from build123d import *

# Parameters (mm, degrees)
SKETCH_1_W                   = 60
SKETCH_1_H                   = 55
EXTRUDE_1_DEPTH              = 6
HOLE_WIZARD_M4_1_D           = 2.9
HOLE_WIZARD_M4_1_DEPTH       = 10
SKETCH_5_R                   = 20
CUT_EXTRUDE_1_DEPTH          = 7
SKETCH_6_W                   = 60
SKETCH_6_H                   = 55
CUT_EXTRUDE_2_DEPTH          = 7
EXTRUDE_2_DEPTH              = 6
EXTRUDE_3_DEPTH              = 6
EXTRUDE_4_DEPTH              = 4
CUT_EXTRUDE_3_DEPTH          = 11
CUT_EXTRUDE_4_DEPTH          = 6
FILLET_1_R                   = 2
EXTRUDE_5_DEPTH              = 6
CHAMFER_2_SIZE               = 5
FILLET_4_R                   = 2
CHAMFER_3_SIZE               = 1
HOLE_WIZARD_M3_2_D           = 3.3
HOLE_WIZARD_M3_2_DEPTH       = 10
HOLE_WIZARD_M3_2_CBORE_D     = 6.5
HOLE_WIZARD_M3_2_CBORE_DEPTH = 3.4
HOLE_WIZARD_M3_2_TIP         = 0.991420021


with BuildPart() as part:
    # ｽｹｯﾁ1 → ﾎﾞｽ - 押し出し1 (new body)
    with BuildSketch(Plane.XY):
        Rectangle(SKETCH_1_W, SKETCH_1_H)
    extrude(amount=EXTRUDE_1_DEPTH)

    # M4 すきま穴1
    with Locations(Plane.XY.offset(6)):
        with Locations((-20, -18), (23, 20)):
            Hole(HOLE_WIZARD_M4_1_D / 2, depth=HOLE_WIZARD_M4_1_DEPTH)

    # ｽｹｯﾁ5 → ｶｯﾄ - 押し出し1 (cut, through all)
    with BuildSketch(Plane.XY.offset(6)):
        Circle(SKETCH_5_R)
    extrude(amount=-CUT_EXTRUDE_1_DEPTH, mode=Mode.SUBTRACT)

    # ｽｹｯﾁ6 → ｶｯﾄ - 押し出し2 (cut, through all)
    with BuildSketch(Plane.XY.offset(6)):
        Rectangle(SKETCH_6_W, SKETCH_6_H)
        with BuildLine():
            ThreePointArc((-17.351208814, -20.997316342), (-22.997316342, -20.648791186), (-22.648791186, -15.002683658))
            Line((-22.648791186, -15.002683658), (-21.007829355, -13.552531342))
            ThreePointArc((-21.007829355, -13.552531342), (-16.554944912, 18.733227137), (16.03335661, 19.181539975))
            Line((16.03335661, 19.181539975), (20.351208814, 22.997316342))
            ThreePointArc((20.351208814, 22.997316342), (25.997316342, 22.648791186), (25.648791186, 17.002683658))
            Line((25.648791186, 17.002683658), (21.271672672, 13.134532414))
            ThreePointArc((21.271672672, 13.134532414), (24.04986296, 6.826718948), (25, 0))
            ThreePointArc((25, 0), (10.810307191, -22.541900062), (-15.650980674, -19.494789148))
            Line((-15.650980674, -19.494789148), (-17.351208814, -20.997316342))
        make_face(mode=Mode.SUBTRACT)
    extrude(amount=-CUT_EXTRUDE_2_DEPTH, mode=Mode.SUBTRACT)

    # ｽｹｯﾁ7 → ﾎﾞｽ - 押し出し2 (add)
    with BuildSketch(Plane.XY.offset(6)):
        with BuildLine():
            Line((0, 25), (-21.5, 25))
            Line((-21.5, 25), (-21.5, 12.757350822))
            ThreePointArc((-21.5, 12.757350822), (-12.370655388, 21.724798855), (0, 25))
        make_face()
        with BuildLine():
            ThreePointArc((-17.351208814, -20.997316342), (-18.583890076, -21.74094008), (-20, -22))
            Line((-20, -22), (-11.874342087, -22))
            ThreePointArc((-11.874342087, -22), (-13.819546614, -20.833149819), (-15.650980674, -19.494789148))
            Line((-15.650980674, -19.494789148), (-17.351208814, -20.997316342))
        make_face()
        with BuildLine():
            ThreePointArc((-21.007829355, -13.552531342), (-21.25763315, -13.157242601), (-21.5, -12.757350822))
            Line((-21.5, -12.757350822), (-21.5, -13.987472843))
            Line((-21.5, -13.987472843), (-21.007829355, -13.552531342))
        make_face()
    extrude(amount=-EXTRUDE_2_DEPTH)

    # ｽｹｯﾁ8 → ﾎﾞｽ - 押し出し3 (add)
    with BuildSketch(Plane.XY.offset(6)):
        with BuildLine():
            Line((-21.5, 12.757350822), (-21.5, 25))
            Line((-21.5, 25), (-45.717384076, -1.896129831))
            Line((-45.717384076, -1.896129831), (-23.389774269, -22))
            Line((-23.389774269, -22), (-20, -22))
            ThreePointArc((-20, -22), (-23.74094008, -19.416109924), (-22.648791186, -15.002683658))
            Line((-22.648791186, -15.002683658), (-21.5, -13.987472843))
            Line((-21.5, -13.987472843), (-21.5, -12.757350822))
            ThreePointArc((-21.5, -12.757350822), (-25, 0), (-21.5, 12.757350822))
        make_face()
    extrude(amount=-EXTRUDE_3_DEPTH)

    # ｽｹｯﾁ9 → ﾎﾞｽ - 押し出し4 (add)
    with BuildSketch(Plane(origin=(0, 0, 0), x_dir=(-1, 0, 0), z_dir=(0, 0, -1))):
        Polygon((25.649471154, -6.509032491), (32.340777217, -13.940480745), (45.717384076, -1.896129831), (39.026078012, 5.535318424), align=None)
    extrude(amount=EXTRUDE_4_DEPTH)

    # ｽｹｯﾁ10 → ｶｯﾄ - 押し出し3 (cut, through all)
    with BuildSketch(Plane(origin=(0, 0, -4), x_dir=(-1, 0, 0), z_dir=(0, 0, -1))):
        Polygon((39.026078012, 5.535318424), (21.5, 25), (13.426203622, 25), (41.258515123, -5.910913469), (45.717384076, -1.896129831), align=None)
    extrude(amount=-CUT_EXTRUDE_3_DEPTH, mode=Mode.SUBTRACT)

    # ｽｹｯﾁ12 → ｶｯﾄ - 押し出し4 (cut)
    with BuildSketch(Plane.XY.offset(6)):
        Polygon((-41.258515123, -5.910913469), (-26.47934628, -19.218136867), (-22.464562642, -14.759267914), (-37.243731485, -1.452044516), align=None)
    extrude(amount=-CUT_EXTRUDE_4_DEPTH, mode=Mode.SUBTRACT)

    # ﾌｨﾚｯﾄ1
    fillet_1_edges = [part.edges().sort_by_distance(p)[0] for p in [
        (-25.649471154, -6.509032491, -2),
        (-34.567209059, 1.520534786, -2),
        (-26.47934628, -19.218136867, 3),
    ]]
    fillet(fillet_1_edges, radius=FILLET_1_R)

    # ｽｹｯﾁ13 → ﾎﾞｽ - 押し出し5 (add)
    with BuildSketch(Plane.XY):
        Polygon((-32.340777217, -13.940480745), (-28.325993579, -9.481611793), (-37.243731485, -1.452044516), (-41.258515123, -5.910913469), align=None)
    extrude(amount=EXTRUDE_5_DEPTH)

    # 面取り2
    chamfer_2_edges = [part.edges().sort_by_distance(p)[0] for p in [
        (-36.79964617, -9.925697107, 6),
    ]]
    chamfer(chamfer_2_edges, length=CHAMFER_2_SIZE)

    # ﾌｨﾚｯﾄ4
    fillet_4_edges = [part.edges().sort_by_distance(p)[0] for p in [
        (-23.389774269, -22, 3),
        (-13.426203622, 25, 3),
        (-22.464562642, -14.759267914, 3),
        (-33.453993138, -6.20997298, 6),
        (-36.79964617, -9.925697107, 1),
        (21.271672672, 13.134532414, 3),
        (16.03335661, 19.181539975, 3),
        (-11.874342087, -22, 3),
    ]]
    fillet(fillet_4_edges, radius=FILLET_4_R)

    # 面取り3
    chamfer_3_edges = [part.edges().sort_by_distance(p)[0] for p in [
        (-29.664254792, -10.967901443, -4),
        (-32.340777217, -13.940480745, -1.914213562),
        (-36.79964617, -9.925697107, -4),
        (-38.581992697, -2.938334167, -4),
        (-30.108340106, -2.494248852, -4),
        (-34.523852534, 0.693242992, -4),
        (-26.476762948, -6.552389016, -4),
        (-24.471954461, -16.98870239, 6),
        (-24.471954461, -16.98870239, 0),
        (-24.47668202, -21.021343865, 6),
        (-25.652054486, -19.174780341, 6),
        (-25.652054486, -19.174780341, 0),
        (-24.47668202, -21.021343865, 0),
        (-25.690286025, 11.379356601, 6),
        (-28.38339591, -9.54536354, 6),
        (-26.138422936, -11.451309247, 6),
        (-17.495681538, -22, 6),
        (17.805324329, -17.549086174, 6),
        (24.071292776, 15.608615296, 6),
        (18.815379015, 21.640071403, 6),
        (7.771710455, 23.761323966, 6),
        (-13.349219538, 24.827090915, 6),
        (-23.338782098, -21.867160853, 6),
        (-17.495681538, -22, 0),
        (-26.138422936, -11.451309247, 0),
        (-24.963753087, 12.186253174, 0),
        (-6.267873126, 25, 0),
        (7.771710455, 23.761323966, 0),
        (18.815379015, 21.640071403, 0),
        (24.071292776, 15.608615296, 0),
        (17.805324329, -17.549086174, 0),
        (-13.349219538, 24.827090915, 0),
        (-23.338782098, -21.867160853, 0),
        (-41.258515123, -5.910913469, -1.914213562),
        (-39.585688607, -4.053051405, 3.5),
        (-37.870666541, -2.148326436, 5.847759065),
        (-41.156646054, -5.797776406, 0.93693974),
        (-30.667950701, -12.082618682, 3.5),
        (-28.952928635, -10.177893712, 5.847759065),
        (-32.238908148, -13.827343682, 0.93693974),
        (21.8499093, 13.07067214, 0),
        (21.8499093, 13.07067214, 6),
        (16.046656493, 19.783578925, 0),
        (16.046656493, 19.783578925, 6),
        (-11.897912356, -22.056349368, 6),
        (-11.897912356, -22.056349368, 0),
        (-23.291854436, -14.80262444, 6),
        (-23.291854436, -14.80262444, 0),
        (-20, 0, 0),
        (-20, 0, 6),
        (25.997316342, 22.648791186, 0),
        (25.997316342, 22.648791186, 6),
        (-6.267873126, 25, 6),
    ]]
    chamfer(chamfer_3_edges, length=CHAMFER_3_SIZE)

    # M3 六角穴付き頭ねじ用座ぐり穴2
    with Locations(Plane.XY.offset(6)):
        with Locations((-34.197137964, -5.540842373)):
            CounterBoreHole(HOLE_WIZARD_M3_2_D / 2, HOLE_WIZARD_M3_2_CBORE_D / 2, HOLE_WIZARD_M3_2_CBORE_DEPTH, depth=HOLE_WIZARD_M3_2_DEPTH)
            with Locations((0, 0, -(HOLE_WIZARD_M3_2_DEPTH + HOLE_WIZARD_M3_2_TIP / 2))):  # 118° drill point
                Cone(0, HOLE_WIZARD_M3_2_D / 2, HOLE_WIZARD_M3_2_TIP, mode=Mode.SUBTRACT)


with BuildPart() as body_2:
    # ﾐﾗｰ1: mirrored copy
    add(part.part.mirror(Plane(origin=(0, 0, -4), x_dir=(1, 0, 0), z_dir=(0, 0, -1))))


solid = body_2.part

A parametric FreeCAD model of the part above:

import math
import FreeCAD as App
import Part
import Sketcher
Q = App.Units.Quantity


def edges_at(feature, points):
    """Names of the edges that pass closest to the given points."""
    edges = feature.Shape.Edges
    near = lambda p: min(range(len(edges)), key=lambda i: edges[i].distToShape(Part.Vertex(*p))[0])
    return sorted({f"Edge{near(p) + 1}" for p in points})


def add_polygon(sketch, points):
    """Adds a closed chain of lines whose ends are joined by coincident constraints."""
    first, n = sketch.GeometryCount, len(points)
    for a, b in zip(points, points[1:] + points[:1]):
        sketch.addGeometry(Part.LineSegment(App.Vector(*a, 0), App.Vector(*b, 0)), False)
    for i in range(n):
        sketch.addConstraint(Sketcher.Constraint("Coincident", first + i, 2, first + (i + 1) % n, 1))

doc = App.newDocument("Part")
params = doc.addObject("Spreadsheet::Sheet", "Params")
for row, (alias, value) in enumerate([
    ("sketch1_width", "60 mm"),
    ("sketch1_height", "55 mm"),
    ("pad1_length", "6 mm"),
    ("sketch2_diameter", "2.9 mm"),
    ("hole_diameter", "2.9 mm"),
    ("hole_depth", "10 mm"),
    ("sketch3_diameter", "40 mm"),
    ("sketch4_radius", "4 mm"),
    ("sketch4_radius2", "25 mm"),
    ("sketch4_width", "60 mm"),
    ("sketch4_height", "55 mm"),
    ("sketch5_radius", "25 mm"),
    ("sketch5_radius2", "4 mm"),
    ("sketch5_width", "21.5 mm"),
    ("pad2_length", "6 mm"),
    ("sketch6_radius", "4 mm"),
    ("sketch6_radius2", "25 mm"),
    ("pad3_length", "6 mm"),
    ("sketch7_length", "10 mm"),
    ("sketch7_length2", "18 mm"),
    ("pad4_length", "4 mm"),
    ("sketch8_length", "6 mm"),
    ("sketch8_length2", "10 mm"),
    ("sketch9_length", "6 mm"),
    ("pocket4_length", "6 mm"),
    ("fillet_radius", "2 mm"),
    ("sketch10_length", "6 mm"),
    ("sketch10_length2", "12 mm"),
    ("pad5_length", "6 mm"),
    ("chamfer_size", "5 mm"),
    ("fillet2_radius", "2 mm"),
    ("chamfer2_size", "1 mm"),
    ("sketch11_diameter", "3.3 mm"),
    ("hole2_diameter", "3.3 mm"),
    ("hole2_depth", "10 mm"),
    ("hole2_cbore_diameter", "6.5 mm"),
    ("hole2_cbore_depth", "3.4 mm"),
], start=1):
    params.set(f"A{row}", alias)
    params.set(f"B{row}", "=" + value)
    params.setAlias(f"B{row}", alias)

body = doc.addObject("PartDesign::Body", "Body")

sketch1 = body.newObject("Sketcher::SketchObject", "Sketch")
sketch1.AttachmentSupport = (doc.getObject("XY_Plane"), [""])
sketch1.MapMode = "FlatFace"
add_polygon(sketch1, [(-30, 28), (-30, -28), (30, -28), (30, 28)])
sketch1.addConstraint(Sketcher.Constraint("Vertical", 0))
sketch1.addConstraint(Sketcher.Constraint("Horizontal", 1))
sketch1.addConstraint(Sketcher.Constraint("Vertical", 2))
sketch1.addConstraint(Sketcher.Constraint("Horizontal", 3))
sketch1.addConstraint(Sketcher.Constraint("Symmetric", 0, 2, 2, 2, -1, 1))
sketch1.addConstraint(Sketcher.Constraint("DistanceX", 1, 1, 1, 2, 60.0))
sketch1.addConstraint(Sketcher.Constraint("DistanceY", 0, 2, 0, 1, 55.0))
sketch1.setExpression("Constraints[9]", "Params.sketch1_width")
sketch1.setExpression("Constraints[10]", "Params.sketch1_height")
pad1 = body.newObject("PartDesign::Pad", "Pad")
pad1.Profile = sketch1
pad1.setExpression("Length", "Params.pad1_length")

sketch2 = body.newObject("Sketcher::SketchObject", "Sketch001")
sketch2.AttachmentSupport = (doc.getObject("XY_Plane"), [""])
sketch2.MapMode = "FlatFace"
sketch2.AttachmentOffset = App.Placement(App.Vector(0, 0, 6), App.Rotation())
sketch2.addGeometry(Part.Circle(App.Vector(-20, -18, 0), App.Vector(0, 0, 1), 1.4), False)
sketch2.addGeometry(Part.Circle(App.Vector(23, 20, 0), App.Vector(0, 0, 1), 1.4), False)
sketch2.addConstraint(Sketcher.Constraint("Equal", 0, 1))
sketch2.addConstraint(Sketcher.Constraint("Diameter", 0, 2.9))
sketch2.addConstraint(Sketcher.Constraint("DistanceX", 0, 3, -1, 1, 20.0))
sketch2.addConstraint(Sketcher.Constraint("DistanceY", 0, 3, -1, 1, 18.0))
sketch2.addConstraint(Sketcher.Constraint("DistanceX", -1, 1, 1, 3, 23.0))
sketch2.addConstraint(Sketcher.Constraint("DistanceY", -1, 1, 1, 3, 20.0))
sketch2.setExpression("Constraints[1]", "Params.sketch2_diameter")
doc.recompute()
hole = body.newObject("PartDesign::Hole", "Hole")
hole.Profile = sketch2
hole.ThreadType = "None"
hole.setExpression("Diameter", "Params.hole_diameter")
hole.DepthType = "Dimension"
hole.setExpression("Depth", "Params.hole_depth")
hole.DrillPoint = "Flat"

sketch3 = body.newObject("Sketcher::SketchObject", "Sketch002")
sketch3.AttachmentSupport = (doc.getObject("XY_Plane"), [""])
sketch3.MapMode = "FlatFace"
sketch3.AttachmentOffset = App.Placement(App.Vector(0, 0, 6), App.Rotation())
sketch3.addGeometry(Part.Circle(App.Vector(0, 0, 0), App.Vector(0, 0, 1), 20), False)
sketch3.addConstraint(Sketcher.Constraint("Coincident", 0, 3, -1, 1))
sketch3.addConstraint(Sketcher.Constraint("Diameter", 0, 40.0))
sketch3.setExpression("Constraints[1]", "Params.sketch3_diameter")
pocket1 = body.newObject("PartDesign::Pocket", "Pocket")
pocket1.Profile = sketch3
pocket1.Type = "ThroughAll"

sketch4 = body.newObject("Sketcher::SketchObject", "Sketch003")
sketch4.AttachmentSupport = (doc.getObject("XY_Plane"), [""])
sketch4.MapMode = "FlatFace"
sketch4.AttachmentOffset = App.Placement(App.Vector(0, 0, 6), App.Rotation())
add_polygon(sketch4, [(-30, 27.5), (-30, -27.5), (30, -27.5), (30, 27.5)])
sketch4.addGeometry(Part.LineSegment(App.Vector(-15.7, -19.5, 0), App.Vector(-17.4, -21, 0)), False)
sketch4.addGeometry(Part.ArcOfCircle(Part.Circle(App.Vector(-20, -18, 0), App.Vector(0, 0, 1), 4), math.radians(131), math.radians(311)), False)
sketch4.addGeometry(Part.LineSegment(App.Vector(-22.6, -15, 0), App.Vector(-21, -13.6, 0)), False)
sketch4.addGeometry(Part.ArcOfCircle(Part.Circle(App.Vector(0, 0, 0), App.Vector(0, 0, 1), 25), math.radians(50), math.radians(213)), False)
sketch4.addGeometry(Part.LineSegment(App.Vector(16, 19.2, 0), App.Vector(20.4, 23, 0)), False)
sketch4.addGeometry(Part.ArcOfCircle(Part.Circle(App.Vector(23, 20, 0), App.Vector(0, 0, 1), 4), math.radians(-49), math.radians(131)), False)
sketch4.addGeometry(Part.LineSegment(App.Vector(25.6, 17, 0), App.Vector(21.3, 13.1, 0)), False)
sketch4.addGeometry(Part.ArcOfCircle(Part.Circle(App.Vector(0, 0, 0), App.Vector(0, 0, 1), 25), math.radians(0), math.radians(32)), False)
sketch4.addGeometry(Part.ArcOfCircle(Part.Circle(App.Vector(0, 0, 0), App.Vector(0, 0, 1), 25), math.radians(-129), math.radians(0)), False)
sketch4.addConstraint(Sketcher.Constraint("Tangent", 4, 2, 5, 2))
sketch4.addConstraint(Sketcher.Constraint("Tangent", 5, 1, 6, 1))
sketch4.addConstraint(Sketcher.Constraint("Coincident", 6, 2, 7, 2))
sketch4.addConstraint(Sketcher.Constraint("Coincident", 7, 1, 8, 1))
sketch4.addConstraint(Sketcher.Constraint("Tangent", 8, 2, 9, 2))
sketch4.addConstraint(Sketcher.Constraint("Tangent", 9, 1, 10, 1))
sketch4.addConstraint(Sketcher.Constraint("Coincident", 10, 2, 11, 2))
sketch4.addConstraint(Sketcher.Constraint("Tangent", 11, 1, 12, 2))
sketch4.addConstraint(Sketcher.Constraint("Coincident", 12, 1, 4, 1))
sketch4.addConstraint(Sketcher.Constraint("Vertical", 0))
sketch4.addConstraint(Sketcher.Constraint("Horizontal", 1))
sketch4.addConstraint(Sketcher.Constraint("Vertical", 2))
sketch4.addConstraint(Sketcher.Constraint("Horizontal", 3))
sketch4.addConstraint(Sketcher.Constraint("Coincident", 7, 3, -1, 1))
sketch4.addConstraint(Sketcher.Constraint("Coincident", 11, 3, -1, 1))
sketch4.addConstraint(Sketcher.Constraint("Equal", 5, 9))
sketch4.addConstraint(Sketcher.Constraint("Equal", 7, 11))
sketch4.addConstraint(Sketcher.Constraint("Equal", 11, 12))
sketch4.addConstraint(Sketcher.Constraint("Symmetric", 0, 2, 2, 2, -1, 1))
sketch4.addConstraint(Sketcher.Constraint("PointOnObject", 11, 1, -1))
sketch4.addConstraint(Sketcher.Constraint("Parallel", 4, 6))
sketch4.addConstraint(Sketcher.Constraint("Parallel", 6, 8))
sketch4.addConstraint(Sketcher.Constraint("Parallel", 8, 10))
sketch4.addConstraint(Sketcher.Constraint("Radius", 5, 4.0))
sketch4.addConstraint(Sketcher.Constraint("Radius", 7, 25.0))
sketch4.addConstraint(Sketcher.Constraint("DistanceX", 1, 1, 1, 2, 60.0))
sketch4.addConstraint(Sketcher.Constraint("DistanceY", 0, 2, 0, 1, 55.0))
sketch4.addConstraint(Sketcher.Constraint("DistanceX", 5, 3, -1, 1, 20.0))
sketch4.addConstraint(Sketcher.Constraint("DistanceY", 5, 3, -1, 1, 18.0))
sketch4.addConstraint(Sketcher.Constraint("DistanceX", -1, 1, 9, 3, 23.0))
sketch4.addConstraint(Sketcher.Constraint("DistanceY", -1, 1, 9, 3, 20.0))
sketch4.addConstraint(Sketcher.Constraint("Distance", 4, 2.269001))
sketch4.setExpression("Constraints[27]", "Params.sketch4_radius")
sketch4.setExpression("Constraints[28]", "Params.sketch4_radius2")
sketch4.setExpression("Constraints[29]", "Params.sketch4_width")
sketch4.setExpression("Constraints[30]", "Params.sketch4_height")
pocket2 = body.newObject("PartDesign::Pocket", "Pocket001")
pocket2.Profile = sketch4
pocket2.Type = "ThroughAll"

sketch5 = body.newObject("Sketcher::SketchObject", "Sketch004")
sketch5.AttachmentSupport = (doc.getObject("XY_Plane"), [""])
sketch5.MapMode = "FlatFace"
sketch5.AttachmentOffset = App.Placement(App.Vector(0, 0, 6), App.Rotation())
sketch5.addGeometry(Part.LineSegment(App.Vector(0, 25, 0), App.Vector(-21.5, 25, 0)), False)
sketch5.addGeometry(Part.LineSegment(App.Vector(-21.5, 25, 0), App.Vector(-21.5, 12.8, 0)), False)
sketch5.addGeometry(Part.ArcOfCircle(Part.Circle(App.Vector(0, 0, 0), App.Vector(0, 0, 1), 25), math.radians(90), math.radians(149)), False)
sketch5.addGeometry(Part.ArcOfCircle(Part.Circle(App.Vector(-20, -18, 0), App.Vector(0, 0, 1), 4), math.radians(-90), math.radians(-49)), False)
sketch5.addGeometry(Part.LineSegment(App.Vector(-20, -22, 0), App.Vector(-11.9, -22, 0)), False)
sketch5.addGeometry(Part.ArcOfCircle(Part.Circle(App.Vector(0, 0, 0), App.Vector(0, 0, 1), 25), math.radians(-128.76), math.radians(-118.36)), False)
sketch5.addGeometry(Part.LineSegment(App.Vector(-15.7, -19.5, 0), App.Vector(-17.4, -21, 0)), False)
sketch5.addGeometry(Part.ArcOfCircle(Part.Circle(App.Vector(0, 0, 0), App.Vector(0, 0, 1), 25), math.radians(-149.32), math.radians(-147.17)), False)
sketch5.addGeometry(Part.LineSegment(App.Vector(-21.5, -12.8, 0), App.Vector(-21.5, -14, 0)), False)
sketch5.addGeometry(Part.LineSegment(App.Vector(-21.5, -14, 0), App.Vector(-21, -13.6, 0)), False)
sketch5.addConstraint(Sketcher.Constraint("Coincident", 0, 2, 1, 1))
sketch5.addConstraint(Sketcher.Constraint("Coincident", 1, 2, 2, 2))
sketch5.addConstraint(Sketcher.Constraint("Tangent", 2, 1, 0, 1))
sketch5.addConstraint(Sketcher.Constraint("Tangent", 3, 1, 4, 1))
sketch5.addConstraint(Sketcher.Constraint("Coincident", 4, 2, 5, 2))
sketch5.addConstraint(Sketcher.Constraint("Coincident", 5, 1, 6, 1))
sketch5.addConstraint(Sketcher.Constraint("Tangent", 6, 2, 3, 2))
sketch5.addConstraint(Sketcher.Constraint("Coincident", 7, 1, 8, 1))
sketch5.addConstraint(Sketcher.Constraint("Coincident", 8, 2, 9, 1))
sketch5.addConstraint(Sketcher.Constraint("Coincident", 9, 2, 7, 2))
sketch5.addConstraint(Sketcher.Constraint("Horizontal", 0))
sketch5.addConstraint(Sketcher.Constraint("Vertical", 1))
sketch5.addConstraint(Sketcher.Constraint("Horizontal", 4))
sketch5.addConstraint(Sketcher.Constraint("Vertical", 8))
sketch5.addConstraint(Sketcher.Constraint("Coincident", 2, 3, -1, 1))
sketch5.addConstraint(Sketcher.Constraint("Coincident", 5, 3, -1, 1))
sketch5.addConstraint(Sketcher.Constraint("Coincident", 7, 3, -1, 1))
sketch5.addConstraint(Sketcher.Constraint("Equal", 2, 5))
sketch5.addConstraint(Sketcher.Constraint("Equal", 5, 7))
sketch5.addConstraint(Sketcher.Constraint("Parallel", 6, 9))
sketch5.addConstraint(Sketcher.Constraint("Vertical", 1, 2, 7, 1))
sketch5.addConstraint(Sketcher.Constraint("Radius", 2, 25.0))
sketch5.addConstraint(Sketcher.Constraint("Radius", 3, 4.0))
sketch5.addConstraint(Sketcher.Constraint("DistanceX", 0, 2, 0, 1, 21.5))
sketch5.addConstraint(Sketcher.Constraint("DistanceX", 3, 3, -1, 1, 20.0))
sketch5.addConstraint(Sketcher.Constraint("DistanceY", 3, 3, -1, 1, 18.0))
sketch5.addConstraint(Sketcher.Constraint("Distance", 6, 2.269001))
sketch5.addConstraint(Sketcher.Constraint("DistanceY", 8, 2, 8, 1, 1.230122))
sketch5.setExpression("Constraints[21]", "Params.sketch5_radius")
sketch5.setExpression("Constraints[22]", "Params.sketch5_radius2")
sketch5.setExpression("Constraints[23]", "Params.sketch5_width")
pad2 = body.newObject("PartDesign::Pad", "Pad001")
pad2.Profile = sketch5
pad2.setExpression("Length", "Params.pad2_length")
pad2.Reversed = True

sketch6 = body.newObject("Sketcher::SketchObject", "Sketch005")
sketch6.AttachmentSupport = (doc.getObject("XY_Plane"), [""])
sketch6.MapMode = "FlatFace"
sketch6.AttachmentOffset = App.Placement(App.Vector(0, 0, 6), App.Rotation())
sketch6.addGeometry(Part.LineSegment(App.Vector(-21.5, 12.8, 0), App.Vector(-21.5, 25, 0)), False)
sketch6.addGeometry(Part.LineSegment(App.Vector(-21.5, 25, 0), App.Vector(-45.7, -1.9, 0)), False)
sketch6.addGeometry(Part.LineSegment(App.Vector(-45.7, -1.9, 0), App.Vector(-23.4, -22, 0)), False)
sketch6.addGeometry(Part.LineSegment(App.Vector(-23.4, -22, 0), App.Vector(-20, -22, 0)), False)
sketch6.addGeometry(Part.ArcOfCircle(Part.Circle(App.Vector(-20, -18, 0), App.Vector(0, 0, 1), 4), math.radians(131), math.radians(270)), False)
sketch6.addGeometry(Part.LineSegment(App.Vector(-22.6, -15, 0), App.Vector(-21.5, -14, 0)), False)
sketch6.addGeometry(Part.LineSegment(App.Vector(-21.5, -14, 0), App.Vector(-21.5, -12.8, 0)), False)
sketch6.addGeometry(Part.ArcOfCircle(Part.Circle(App.Vector(0, 0, 0), App.Vector(0, 0, 1), 25), math.radians(149), math.radians(211)), False)
sketch6.addConstraint(Sketcher.Constraint("Coincident", 0, 2, 1, 1))
sketch6.addConstraint(Sketcher.Constraint("Coincident", 1, 2, 2, 1))
sketch6.addConstraint(Sketcher.Constraint("Coincident", 2, 2, 3, 1))
sketch6.addConstraint(Sketcher.Constraint("Tangent", 3, 2, 4, 2))
sketch6.addConstraint(Sketcher.Constraint("Tangent", 4, 1, 5, 1))
sketch6.addConstraint(Sketcher.Constraint("Coincident", 5, 2, 6, 1))
sketch6.addConstraint(Sketcher.Constraint("Coincident", 6, 2, 7, 2))
sketch6.addConstraint(Sketcher.Constraint("Coincident", 7, 1, 0, 1))
sketch6.addConstraint(Sketcher.Constraint("Vertical", 0))
sketch6.addConstraint(Sketcher.Constraint("Horizontal", 3))
sketch6.addConstraint(Sketcher.Constraint("Vertical", 6))
sketch6.addConstraint(Sketcher.Constraint("Coincident", 7, 3, -1, 1))
sketch6.addConstraint(Sketcher.Constraint("Perpendicular", 1, 2))
sketch6.addConstraint(Sketcher.Constraint("Vertical", 0, 2, 5, 2))
sketch6.addConstraint(Sketcher.Constraint("Radius", 4, 4.0))
sketch6.addConstraint(Sketcher.Constraint("Radius", 7, 25.0))
sketch6.addConstraint(Sketcher.Constraint("Angle", 1, Q("-132 deg")))
sketch6.addConstraint(Sketcher.Constraint("DistanceX", 4, 3, -1, 1, 20.0))
sketch6.addConstraint(Sketcher.Constraint("DistanceY", 4, 3, -1, 1, 18.0))
sketch6.addConstraint(Sketcher.Constraint("DistanceY", -1, 1, 0, 2, 25.0))
sketch6.addConstraint(Sketcher.Constraint("DistanceX", 0, 2, -1, 1, 21.5))
sketch6.addConstraint(Sketcher.Constraint("DistanceX", 3, 1, 3, 2, 3.389774))
sketch6.addConstraint(Sketcher.Constraint("DistanceY", 6, 1, 6, 2, 1.230122))
sketch6.setExpression("Constraints[14]", "Params.sketch6_radius")
sketch6.setExpression("Constraints[15]", "Params.sketch6_radius2")
pad3 = body.newObject("PartDesign::Pad", "Pad002")
pad3.Profile = sketch6
pad3.setExpression("Length", "Params.pad3_length")
pad3.Reversed = True

sketch7 = body.newObject("Sketcher::SketchObject", "Sketch006")
sketch7.AttachmentSupport = (doc.getObject("XY_Plane"), [""])
sketch7.MapMode = "FlatFace"
add_polygon(sketch7, [(-26, -7), (-32, -14), (-46, -2), (-39, 6)])
sketch7.addConstraint(Sketcher.Constraint("Perpendicular", 0, 1))
sketch7.addConstraint(Sketcher.Constraint("Perpendicular", 1, 2))
sketch7.addConstraint(Sketcher.Constraint("Perpendicular", 2, 3))
sketch7.addConstraint(Sketcher.Constraint("Angle", 0, Q("-132 deg")))
sketch7.addConstraint(Sketcher.Constraint("Distance", 0, 10.0))
sketch7.addConstraint(Sketcher.Constraint("Distance", 1, 18.0))
sketch7.addConstraint(Sketcher.Constraint("DistanceY", 0, 2, -1, 1, 13.940481))
sketch7.addConstraint(Sketcher.Constraint("DistanceX", 2, 2, -1, 1, 39.026078))
sketch7.setExpression("Constraints[8]", "Params.sketch7_length")
sketch7.setExpression("Constraints[9]", "Params.sketch7_length2")
pad4 = body.newObject("PartDesign::Pad", "Pad003")
pad4.Profile = sketch7
pad4.setExpression("Length", "Params.pad4_length")
pad4.Reversed = True

sketch8 = body.newObject("Sketcher::SketchObject", "Sketch007")
sketch8.AttachmentSupport = (doc.getObject("XY_Plane"), [""])
sketch8.MapMode = "FlatFace"
sketch8.AttachmentOffset = App.Placement(App.Vector(0, 0, -4), App.Rotation())
add_polygon(sketch8, [(-39, 6), (-22, 25), (-13, 25), (-41, -6), (-46, -2)])
sketch8.addConstraint(Sketcher.Constraint("Horizontal", 1))
sketch8.addConstraint(Sketcher.Constraint("Parallel", 0, 2))
sketch8.addConstraint(Sketcher.Constraint("Perpendicular", 2, 3))
sketch8.addConstraint(Sketcher.Constraint("Perpendicular", 3, 4))
sketch8.addConstraint(Sketcher.Constraint("Angle", 0, Q("48 deg")))
sketch8.addConstraint(Sketcher.Constraint("Distance", 3, 6.0))
sketch8.addConstraint(Sketcher.Constraint("Distance", 4, 10.0))
sketch8.addConstraint(Sketcher.Constraint("DistanceY", -1, 1, 0, 2, 25.0))
sketch8.addConstraint(Sketcher.Constraint("DistanceX", 0, 2, -1, 1, 21.5))
sketch8.addConstraint(Sketcher.Constraint("DistanceY", 3, 2, -1, 1, 1.89613))
sketch8.setExpression("Constraints[10]", "Params.sketch8_length")
sketch8.setExpression("Constraints[11]", "Params.sketch8_length2")
pocket3 = body.newObject("PartDesign::Pocket", "Pocket002")
pocket3.Profile = sketch8
pocket3.Type = "ThroughAll"
pocket3.Reversed = True

sketch9 = body.newObject("Sketcher::SketchObject", "Sketch008")
sketch9.AttachmentSupport = (doc.getObject("XY_Plane"), [""])
sketch9.MapMode = "FlatFace"
sketch9.AttachmentOffset = App.Placement(App.Vector(0, 0, 6), App.Rotation())
add_polygon(sketch9, [(-41, -6), (-26, -19), (-22, -15), (-37, -1)])
sketch9.addConstraint(Sketcher.Constraint("Perpendicular", 0, 1))
sketch9.addConstraint(Sketcher.Constraint("Perpendicular", 1, 2))
sketch9.addConstraint(Sketcher.Constraint("Perpendicular", 2, 3))
sketch9.addConstraint(Sketcher.Constraint("Angle", 0, Q("-42 deg")))
sketch9.addConstraint(Sketcher.Constraint("Distance", 1, 6.0))
sketch9.addConstraint(Sketcher.Constraint("DistanceX", 2, 2, -1, 1, 37.243731))
sketch9.addConstraint(Sketcher.Constraint("DistanceX", 2, 2, 1, 2, 14.779169))
sketch9.addConstraint(Sketcher.Constraint("DistanceY", 0, 2, -1, 1, 19.218137))
sketch9.setExpression("Constraints[8]", "Params.sketch9_length")
pocket4 = body.newObject("PartDesign::Pocket", "Pocket003")
pocket4.Profile = sketch9
pocket4.setExpression("Length", "Params.pocket4_length")
doc.recompute()

fillet = body.newObject("PartDesign::Fillet", "Fillet")
fillet.Base = (pocket4, edges_at(pocket4, [(-25.649, -6.509, -2), (-34.567, 1.521, -2), (-26.479, -19.218, 3)]))
fillet.setExpression("Radius", "Params.fillet_radius")

sketch10 = body.newObject("Sketcher::SketchObject", "Sketch009")
sketch10.AttachmentSupport = (doc.getObject("XY_Plane"), [""])
sketch10.MapMode = "FlatFace"
add_polygon(sketch10, [(-32, -14), (-28, -9), (-37, -1), (-41, -6)])
sketch10.addConstraint(Sketcher.Constraint("Perpendicular", 0, 1))
sketch10.addConstraint(Sketcher.Constraint("Perpendicular", 1, 2))
sketch10.addConstraint(Sketcher.Constraint("Perpendicular", 2, 3))
sketch10.addConstraint(Sketcher.Constraint("Angle", 0, Q("48 deg")))
sketch10.addConstraint(Sketcher.Constraint("Distance", 0, 6.0))
sketch10.addConstraint(Sketcher.Constraint("Distance", 1, 12.0))
sketch10.addConstraint(Sketcher.Constraint("DistanceY", 0, 2, -1, 1, 9.481612))
sketch10.addConstraint(Sketcher.Constraint("DistanceX", 1, 2, -1, 1, 37.243731))
sketch10.setExpression("Constraints[8]", "Params.sketch10_length")
sketch10.setExpression("Constraints[9]", "Params.sketch10_length2")
pad5 = body.newObject("PartDesign::Pad", "Pad004")
pad5.Profile = sketch10
pad5.setExpression("Length", "Params.pad5_length")
doc.recompute()

chamfer = body.newObject("PartDesign::Chamfer", "Chamfer")
chamfer.Base = (pad5, edges_at(pad5, [(-36.8, -9.926, 6)]))
chamfer.setExpression("Size", "Params.chamfer_size")
doc.recompute()

fillet2 = body.newObject("PartDesign::Fillet", "Fillet001")
fillet2.Base = (chamfer, edges_at(chamfer, [
    (-23.39, -22, 3),
    (-13.426, 25, 3),
    (-22.465, -14.759, 3),
    (-33.454, -6.21, 6),
    (-36.8, -9.926, 1),
    (21.272, 13.135, 3),
    (16.033, 19.182, 3),
    (-11.874, -22, 3),
]))
fillet2.setExpression("Radius", "Params.fillet2_radius")
doc.recompute()

chamfer2 = body.newObject("PartDesign::Chamfer", "Chamfer001")
chamfer2.Base = (fillet2, edges_at(fillet2, [
    (-29.664, -10.968, -4),
    (-32.341, -13.94, -2),
    (-36.8, -9.926, -4),
    (-38.582, -2.938, -4),
    (-30.108, -2.494, -4),
    (-34.524, 0.693, -4),
    (-26.477, -6.552, -4),
    (-24.472, -16.989, 6),
    (-24.472, -16.989, 0),
    (-24.477, -21.021, 6),
    (-25.652, -19.175, 6),
    (-25.652, -19.175, 0),
    (-24.477, -21.021, 0),
    (-25.633, 11.443, 6),
    (-28.383, -9.545, 6),
    (-26.138, -11.451, 6),
    (-17.496, -22, 6),
    (13.013, -21.346, 6),
    (24.071, 15.609, 6),
    (18.815, 21.64, 6),
    (7.772, 23.761, 6),
    (-13.349, 24.827, 6),
    (-23.339, -21.867, 6),
    (-17.496, -22, 0),
    (-26.138, -11.451, 0),
    (-24.964, 12.186, 0),
    (-6.268, 25, 0),
    (7.772, 23.761, 0),
    (18.815, 21.64, 0),
    (24.071, 15.609, 0),
    (13.013, -21.346, 0),
    (-13.349, 24.827, 0),
    (-23.339, -21.867, 0),
    (-41.259, -5.911, -2),
    (-39.586, -4.053, 3.5),
    (-37.871, -2.148, 5.848),
    (-41.157, -5.798, 0.937),
    (-30.668, -12.083, 3.5),
    (-28.953, -10.178, 5.848),
    (-32.239, -13.827, 0.937),
    (21.85, 13.071, 0),
    (21.85, 13.071, 6),
    (16.047, 19.784, 0),
    (16.047, 19.784, 6),
    (-11.898, -22.056, 6),
    (-11.898, -22.056, 0),
    (-23.292, -14.803, 6),
    (-23.292, -14.803, 0),
    (-20, 0, 0),
    (-20, 0, 6),
    (25.997, 22.649, 0),
    (25.997, 22.649, 6),
    (-6.268, 25, 6),
]))
chamfer2.setExpression("Size", "Params.chamfer2_size")

sketch11 = body.newObject("Sketcher::SketchObject", "Sketch010")
sketch11.AttachmentSupport = (doc.getObject("XY_Plane"), [""])
sketch11.MapMode = "FlatFace"
sketch11.AttachmentOffset = App.Placement(App.Vector(0, 0, 6), App.Rotation())
sketch11.addGeometry(Part.Circle(App.Vector(-34.2, -5.5, 0), App.Vector(0, 0, 1), 1.6), False)
sketch11.addConstraint(Sketcher.Constraint("Diameter", 0, 3.3))
sketch11.addConstraint(Sketcher.Constraint("DistanceX", 0, 3, -1, 1, 34.197138))
sketch11.addConstraint(Sketcher.Constraint("DistanceY", 0, 3, -1, 1, 5.540842))
sketch11.setExpression("Constraints[0]", "Params.sketch11_diameter")
doc.recompute()
hole2 = body.newObject("PartDesign::Hole", "Hole001")
hole2.Profile = sketch11
hole2.ThreadType = "None"
hole2.setExpression("Diameter", "Params.hole2_diameter")
hole2.DepthType = "Dimension"
hole2.setExpression("Depth", "Params.hole2_depth")
hole2.DrillPoint = "Angled"
hole2.DrillPointAngle = 118
hole2.HoleCutType = "Counterbore"
hole2.setExpression("HoleCutDiameter", "Params.hole2_cbore_diameter")
hole2.setExpression("HoleCutDepth", "Params.hole2_cbore_depth")
body2 = doc.addObject("PartDesign::Body", "Body001")
doc.recompute()

mirroring = doc.addObject("Part::Mirroring", "Mirroring")
mirroring.Source = body
mirroring.Base = App.Vector(0, 0, -4)
mirroring.Normal = App.Vector(0, 0, -1)
body2.BaseFeature = mirroring
doc.recompute()
body.Visibility = False
mirroring.Visibility = False

doc.recompute()
